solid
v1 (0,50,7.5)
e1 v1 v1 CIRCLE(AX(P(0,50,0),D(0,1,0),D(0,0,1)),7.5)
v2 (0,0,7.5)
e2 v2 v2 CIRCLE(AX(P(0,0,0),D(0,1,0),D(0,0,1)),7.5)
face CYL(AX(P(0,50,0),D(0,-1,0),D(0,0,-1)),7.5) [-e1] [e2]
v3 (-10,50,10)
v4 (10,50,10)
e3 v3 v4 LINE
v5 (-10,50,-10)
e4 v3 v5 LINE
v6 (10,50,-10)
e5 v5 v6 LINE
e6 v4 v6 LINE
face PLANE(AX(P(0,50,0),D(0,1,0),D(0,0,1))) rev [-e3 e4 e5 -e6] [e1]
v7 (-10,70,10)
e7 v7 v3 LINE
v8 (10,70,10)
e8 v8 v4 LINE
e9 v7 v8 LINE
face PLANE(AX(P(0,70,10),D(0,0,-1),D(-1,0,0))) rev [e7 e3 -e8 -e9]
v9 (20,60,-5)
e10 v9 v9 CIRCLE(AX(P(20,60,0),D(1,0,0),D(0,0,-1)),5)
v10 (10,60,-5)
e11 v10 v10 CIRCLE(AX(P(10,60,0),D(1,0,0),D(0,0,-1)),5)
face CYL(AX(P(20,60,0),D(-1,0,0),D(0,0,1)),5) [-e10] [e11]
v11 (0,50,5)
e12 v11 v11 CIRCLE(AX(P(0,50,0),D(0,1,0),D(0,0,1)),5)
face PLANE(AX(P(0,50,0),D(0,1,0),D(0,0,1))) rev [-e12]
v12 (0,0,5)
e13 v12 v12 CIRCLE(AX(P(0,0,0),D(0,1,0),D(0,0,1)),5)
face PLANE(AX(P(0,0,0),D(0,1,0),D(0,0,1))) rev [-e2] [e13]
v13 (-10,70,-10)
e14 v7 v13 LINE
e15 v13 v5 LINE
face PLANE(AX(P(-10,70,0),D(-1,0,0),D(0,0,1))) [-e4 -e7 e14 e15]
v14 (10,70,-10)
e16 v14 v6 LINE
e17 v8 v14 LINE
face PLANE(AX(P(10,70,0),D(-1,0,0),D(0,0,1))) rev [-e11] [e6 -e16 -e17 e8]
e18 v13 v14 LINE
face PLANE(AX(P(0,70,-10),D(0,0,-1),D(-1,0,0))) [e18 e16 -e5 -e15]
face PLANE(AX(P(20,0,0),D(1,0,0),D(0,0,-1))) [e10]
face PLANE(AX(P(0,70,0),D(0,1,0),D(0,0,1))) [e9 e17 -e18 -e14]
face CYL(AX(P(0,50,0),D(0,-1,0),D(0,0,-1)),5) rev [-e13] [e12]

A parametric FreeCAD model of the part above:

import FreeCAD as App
import Part
import Sketcher
from FreeCAD import Vector
Q = App.Units.Quantity

doc = App.newDocument("Part")
body = doc.addObject("PartDesign::Body", "Body")

# Sketch on XZ plane
sketch1 = body.newObject("Sketcher::SketchObject", "Sketch")
sketch1.AttachmentSupport = (doc.getObject("XZ_Plane"), [""])
sketch1.MapMode = "FlatFace"
sketch1.addGeometry([
    Part.Circle(Vector(0, 0, 0), Vector(0, 0, 1), 8),
    Part.Circle(Vector(0, 0, 0), Vector(0, 0, 1), 5),
], False)
sketch1.addConstraint([
    Sketcher.Constraint("Coincident", 0, 3, -1, 1),
    Sketcher.Constraint("Coincident", 1, 3, -1, 1),
    Sketcher.Constraint("Diameter", 0, Q("15 mm")),
    Sketcher.Constraint("Diameter", 1, Q("10 mm")),
])
pad1 = body.newObject("PartDesign::Pad", "Pad")
pad1.Profile = sketch1
pad1.Length = 50
pad1.Reversed = True

# Sketch on XZ plane
sketch2 = body.newObject("Sketcher::SketchObject", "Sketch001")
sketch2.AttachmentSupport = (doc.getObject("XZ_Plane"), [""])
sketch2.MapMode = "FlatFace"
sketch2.AttachmentOffset = App.Placement(Vector(0, 0, -50), App.Rotation())
sketch2.addGeometry([
    Part.LineSegment(Vector(-10, -10, 0), Vector(-10, 10, 0)),
    Part.LineSegment(Vector(-10, 10, 0), Vector(10, 10, 0)),
    Part.LineSegment(Vector(10, 10, 0), Vector(10, -10, 0)),
    Part.LineSegment(Vector(10, -10, 0), Vector(-10, -10, 0)),
], False)
sketch2.addConstraint([
    Sketcher.Constraint("Coincident", 0, 2, 1, 1),
    Sketcher.Constraint("Coincident", 1, 2, 2, 1),
    Sketcher.Constraint("Coincident", 2, 2, 3, 1),
    Sketcher.Constraint("Coincident", 3, 2, 0, 1),
    Sketcher.Constraint("Vertical", 0),
    Sketcher.Constraint("Horizontal", 1),
    Sketcher.Constraint("Vertical", 2),
    Sketcher.Constraint("Horizontal", 3),
    Sketcher.Constraint("Symmetric", 0, 2, 2, 2, -1, 1),
    Sketcher.Constraint("Equal", 3, 0),
    Sketcher.Constraint("DistanceX", 1, 1, 1, 2, Q("20 mm")),
])
pad2 = body.newObject("PartDesign::Pad", "Pad001")
pad2.Profile = sketch2
pad2.Length = 20
pad2.Reversed = True

# Sketch on YZ plane
sketch3 = body.newObject("Sketcher::SketchObject", "Sketch002")
sketch3.AttachmentSupport = (doc.getObject("YZ_Plane"), [""])
sketch3.MapMode = "FlatFace"
sketch3.AttachmentOffset = App.Placement(Vector(0, 0, 10), App.Rotation())
sketch3.addGeometry(Part.Circle(Vector(60, 0, 0), Vector(0, 0, 1), 5), False)
sketch3.addConstraint([
    Sketcher.Constraint("PointOnObject", 0, 3, -1),
    Sketcher.Constraint("Diameter", 0, Q("10 mm")),
    Sketcher.Constraint("DistanceX", -1, 1, 0, 3, Q("60 mm")),
])
pad3 = body.newObject("PartDesign::Pad", "Pad002")
pad3.Profile = sketch3
pad3.Length = 10

doc.recompute()
